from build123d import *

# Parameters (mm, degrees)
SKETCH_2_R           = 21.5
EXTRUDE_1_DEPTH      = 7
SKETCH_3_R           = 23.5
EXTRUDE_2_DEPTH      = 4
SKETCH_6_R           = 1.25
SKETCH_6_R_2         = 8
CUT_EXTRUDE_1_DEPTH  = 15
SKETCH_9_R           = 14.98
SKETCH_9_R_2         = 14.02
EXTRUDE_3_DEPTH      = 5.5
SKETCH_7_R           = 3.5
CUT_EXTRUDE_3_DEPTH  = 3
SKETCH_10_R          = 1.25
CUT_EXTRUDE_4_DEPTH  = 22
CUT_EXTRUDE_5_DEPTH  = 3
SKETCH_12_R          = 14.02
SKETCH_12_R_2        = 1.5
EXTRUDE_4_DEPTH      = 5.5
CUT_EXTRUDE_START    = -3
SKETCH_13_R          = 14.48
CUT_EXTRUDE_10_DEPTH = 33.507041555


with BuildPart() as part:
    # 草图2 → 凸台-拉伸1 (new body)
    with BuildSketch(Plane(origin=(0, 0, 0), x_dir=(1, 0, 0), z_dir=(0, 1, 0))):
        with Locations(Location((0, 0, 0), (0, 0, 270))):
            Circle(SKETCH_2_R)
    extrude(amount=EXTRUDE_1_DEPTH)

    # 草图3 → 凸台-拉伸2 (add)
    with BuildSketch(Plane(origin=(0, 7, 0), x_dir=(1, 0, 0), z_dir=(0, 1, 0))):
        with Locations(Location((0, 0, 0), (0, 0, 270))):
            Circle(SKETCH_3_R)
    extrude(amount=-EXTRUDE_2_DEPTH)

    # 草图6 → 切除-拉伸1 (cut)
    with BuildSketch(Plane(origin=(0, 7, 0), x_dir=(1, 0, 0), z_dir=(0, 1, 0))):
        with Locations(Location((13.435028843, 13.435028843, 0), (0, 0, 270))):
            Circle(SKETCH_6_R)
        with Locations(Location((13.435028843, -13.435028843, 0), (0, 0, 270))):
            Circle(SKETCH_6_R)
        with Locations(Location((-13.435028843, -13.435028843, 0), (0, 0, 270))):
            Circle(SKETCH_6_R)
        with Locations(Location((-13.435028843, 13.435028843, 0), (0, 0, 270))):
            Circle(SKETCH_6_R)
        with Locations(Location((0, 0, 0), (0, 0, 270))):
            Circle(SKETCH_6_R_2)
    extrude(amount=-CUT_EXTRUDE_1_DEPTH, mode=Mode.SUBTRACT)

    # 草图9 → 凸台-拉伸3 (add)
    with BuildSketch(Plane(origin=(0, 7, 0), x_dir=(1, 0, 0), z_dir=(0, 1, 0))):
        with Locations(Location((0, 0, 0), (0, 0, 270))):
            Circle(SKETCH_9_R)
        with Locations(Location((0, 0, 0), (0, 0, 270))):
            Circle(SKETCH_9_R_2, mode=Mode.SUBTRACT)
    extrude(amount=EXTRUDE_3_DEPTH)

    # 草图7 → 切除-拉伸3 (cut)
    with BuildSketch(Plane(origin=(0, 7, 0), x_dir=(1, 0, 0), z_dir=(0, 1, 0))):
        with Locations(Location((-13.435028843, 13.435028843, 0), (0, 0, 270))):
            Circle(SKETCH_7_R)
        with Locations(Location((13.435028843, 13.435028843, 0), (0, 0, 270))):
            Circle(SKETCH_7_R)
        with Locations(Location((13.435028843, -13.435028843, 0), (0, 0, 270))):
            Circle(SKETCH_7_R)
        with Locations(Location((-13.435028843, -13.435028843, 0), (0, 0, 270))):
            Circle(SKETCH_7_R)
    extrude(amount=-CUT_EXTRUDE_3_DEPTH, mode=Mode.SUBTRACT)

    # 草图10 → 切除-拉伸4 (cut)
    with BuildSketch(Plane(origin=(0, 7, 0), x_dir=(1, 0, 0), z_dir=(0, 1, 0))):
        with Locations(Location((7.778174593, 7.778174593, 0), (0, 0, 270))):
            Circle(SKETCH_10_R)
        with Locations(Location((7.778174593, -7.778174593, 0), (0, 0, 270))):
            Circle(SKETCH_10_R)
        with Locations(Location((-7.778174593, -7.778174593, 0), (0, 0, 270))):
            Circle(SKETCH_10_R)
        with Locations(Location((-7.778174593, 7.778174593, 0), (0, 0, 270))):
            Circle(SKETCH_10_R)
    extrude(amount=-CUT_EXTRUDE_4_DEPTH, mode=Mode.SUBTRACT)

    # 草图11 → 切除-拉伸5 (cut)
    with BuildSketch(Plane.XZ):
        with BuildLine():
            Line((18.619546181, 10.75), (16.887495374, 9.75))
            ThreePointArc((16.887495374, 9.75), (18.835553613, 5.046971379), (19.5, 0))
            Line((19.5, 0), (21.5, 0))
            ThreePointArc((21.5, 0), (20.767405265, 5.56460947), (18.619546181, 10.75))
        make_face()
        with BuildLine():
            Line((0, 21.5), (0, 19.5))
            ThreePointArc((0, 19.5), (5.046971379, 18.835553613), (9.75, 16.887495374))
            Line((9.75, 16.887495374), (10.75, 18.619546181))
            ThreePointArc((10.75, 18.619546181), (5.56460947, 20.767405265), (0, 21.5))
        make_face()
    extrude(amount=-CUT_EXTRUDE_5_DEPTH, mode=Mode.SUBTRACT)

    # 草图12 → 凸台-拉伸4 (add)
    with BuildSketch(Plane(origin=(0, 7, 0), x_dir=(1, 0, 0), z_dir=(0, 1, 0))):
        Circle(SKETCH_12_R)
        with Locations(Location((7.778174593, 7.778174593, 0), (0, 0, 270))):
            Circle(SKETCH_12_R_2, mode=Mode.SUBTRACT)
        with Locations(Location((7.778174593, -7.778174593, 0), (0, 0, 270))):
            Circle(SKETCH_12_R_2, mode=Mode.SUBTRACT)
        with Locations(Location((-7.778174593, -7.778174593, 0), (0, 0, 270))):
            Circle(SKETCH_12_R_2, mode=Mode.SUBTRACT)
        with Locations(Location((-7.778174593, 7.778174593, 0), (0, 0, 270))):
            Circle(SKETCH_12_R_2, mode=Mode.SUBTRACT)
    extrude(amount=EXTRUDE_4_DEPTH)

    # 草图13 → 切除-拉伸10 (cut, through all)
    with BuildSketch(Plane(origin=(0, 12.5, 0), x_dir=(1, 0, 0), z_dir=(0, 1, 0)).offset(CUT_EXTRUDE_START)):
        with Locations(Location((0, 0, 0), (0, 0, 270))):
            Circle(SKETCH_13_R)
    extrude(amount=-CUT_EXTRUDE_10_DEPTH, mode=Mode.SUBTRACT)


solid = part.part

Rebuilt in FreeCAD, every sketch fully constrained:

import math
import FreeCAD as App
import Part
import Sketcher
Q = App.Units.Quantity

doc = App.newDocument("Part")
body = doc.addObject("PartDesign::Body", "Body")

# Sketch on XZ plane
sketch1 = body.newObject("Sketcher::SketchObject", "Sketch")
sketch1.AttachmentSupport = (doc.getObject("XZ_Plane"), [""])
sketch1.MapMode = "FlatFace"
sketch1.addGeometry(Part.Circle(App.Vector(0, 0, 0), App.Vector(0, 0, 1), 22), False)
sketch1.addConstraint([
    Sketcher.Constraint("Coincident", 0, 3, -1, 1),
    Sketcher.Constraint("Diameter", 0, 43.0),
])
pad1 = body.newObject("PartDesign::Pad", "Pad")
pad1.Profile = sketch1
pad1.Length = 7
pad1.Reversed = True

# Sketch on XZ plane
sketch2 = body.newObject("Sketcher::SketchObject", "Sketch001")
sketch2.AttachmentSupport = (doc.getObject("XZ_Plane"), [""])
sketch2.MapMode = "FlatFace"
sketch2.AttachmentOffset = App.Placement(App.Vector(0, 0, -7), App.Rotation())
sketch2.addGeometry(Part.Circle(App.Vector(0, 0, 0), App.Vector(0, 0, 1), 24), False)
sketch2.addConstraint([
    Sketcher.Constraint("Coincident", 0, 3, -1, 1),
    Sketcher.Constraint("Diameter", 0, 47.0),
])
pad2 = body.newObject("PartDesign::Pad", "Pad001")
pad2.Profile = sketch2
pad2.Length = 4

# Sketch on XZ plane
sketch3 = body.newObject("Sketcher::SketchObject", "Sketch002")
sketch3.AttachmentSupport = (doc.getObject("XZ_Plane"), [""])
sketch3.MapMode = "FlatFace"
sketch3.AttachmentOffset = App.Placement(App.Vector(0, 0, -7), App.Rotation())
sketch3.addGeometry([
    Part.Circle(App.Vector(13.4, -13.4, 0), App.Vector(0, 0, 1), 1.2),  # 0
    Part.Circle(App.Vector(13.4, 13.4, 0), App.Vector(0, 0, 1), 1.2),  # 1
    Part.Circle(App.Vector(-13.4, 13.4, 0), App.Vector(0, 0, 1), 1.2),  # 2
    Part.Circle(App.Vector(-13.4, -13.4, 0), App.Vector(0, 0, 1), 1.2),  # 3
    Part.Circle(App.Vector(0, 0, 0), App.Vector(0, 0, 1), 8),  # 4
], False)
sketch3.addConstraint([
    Sketcher.Constraint("Coincident", 4, 3, -1, 1),
    Sketcher.Constraint("Equal", 0, 1),
    Sketcher.Constraint("Equal", 1, 2),
    Sketcher.Constraint("Equal", 2, 3),
    Sketcher.Constraint("Symmetric", 0, 3, 2, 3, -1, 1),
    Sketcher.Constraint("Symmetric", 1, 3, 3, 3, -1, 1),
    Sketcher.Constraint("Symmetric", 1, 3, 2, 3, -2),
    Sketcher.Constraint("Diameter", 4, 16.0),
    Sketcher.Constraint("Diameter", 0, 2.5),
    Sketcher.Constraint("DistanceX", -1, 1, 0, 3, 13.435029),
    Sketcher.Constraint("DistanceY", 0, 3, -1, 1, 13.435029),
])
pocket1 = body.newObject("PartDesign::Pocket", "Pocket")
pocket1.Profile = sketch3
pocket1.Length = 15
pocket1.Reversed = True

# Sketch on XZ plane
sketch4 = body.newObject("Sketcher::SketchObject", "Sketch003")
sketch4.AttachmentSupport = (doc.getObject("XZ_Plane"), [""])
sketch4.MapMode = "FlatFace"
sketch4.AttachmentOffset = App.Placement(App.Vector(0, 0, -7), App.Rotation())
sketch4.addGeometry([
    Part.Circle(App.Vector(0, 0, 0), App.Vector(0, 0, 1), 15),
    Part.Circle(App.Vector(0, 0, 0), App.Vector(0, 0, 1), 14),
], False)
sketch4.addConstraint([
    Sketcher.Constraint("Coincident", 0, 3, -1, 1),
    Sketcher.Constraint("Coincident", 1, 3, -1, 1),
    Sketcher.Constraint("Diameter", 0, 29.96),
    Sketcher.Constraint("Diameter", 1, 28.04),
])
pad3 = body.newObject("PartDesign::Pad", "Pad002")
pad3.Profile = sketch4
pad3.Length = 5.5
pad3.Reversed = True

# Sketch on XZ plane
sketch5 = body.newObject("Sketcher::SketchObject", "Sketch004")
sketch5.AttachmentSupport = (doc.getObject("XZ_Plane"), [""])
sketch5.MapMode = "FlatFace"
sketch5.AttachmentOffset = App.Placement(App.Vector(0, 0, -7), App.Rotation())
sketch5.addGeometry([
    Part.Circle(App.Vector(-13.4, -13.4, 0), App.Vector(0, 0, 1), 3.5),
    Part.Circle(App.Vector(13.4, -13.4, 0), App.Vector(0, 0, 1), 3.5),
    Part.Circle(App.Vector(13.4, 13.4, 0), App.Vector(0, 0, 1), 3.5),
    Part.Circle(App.Vector(-13.4, 13.4, 0), App.Vector(0, 0, 1), 3.5),
], False)
sketch5.addConstraint([
    Sketcher.Constraint("Equal", 0, 1),
    Sketcher.Constraint("Equal", 1, 2),
    Sketcher.Constraint("Equal", 2, 3),
    Sketcher.Constraint("Symmetric", 0, 3, 2, 3, -1, 1),
    Sketcher.Constraint("Symmetric", 1, 3, 3, 3, -1, 1),
    Sketcher.Constraint("Symmetric", 0, 3, 1, 3, -2),
    Sketcher.Constraint("Diameter", 0, 7.0),
    Sketcher.Constraint("DistanceX", 0, 3, -1, 1, 13.435029),
    Sketcher.Constraint("DistanceY", 0, 3, -1, 1, 13.435029),
])
pocket2 = body.newObject("PartDesign::Pocket", "Pocket001")
pocket2.Profile = sketch5
pocket2.Length = 3
pocket2.Reversed = True

# Sketch on XZ plane
sketch6 = body.newObject("Sketcher::SketchObject", "Sketch005")
sketch6.AttachmentSupport = (doc.getObject("XZ_Plane"), [""])
sketch6.MapMode = "FlatFace"
sketch6.AttachmentOffset = App.Placement(App.Vector(0, 0, -7), App.Rotation())
sketch6.addGeometry([
    Part.Circle(App.Vector(7.8, -7.8, 0), App.Vector(0, 0, 1), 1.2),
    Part.Circle(App.Vector(7.8, 7.8, 0), App.Vector(0, 0, 1), 1.2),
    Part.Circle(App.Vector(-7.8, 7.8, 0), App.Vector(0, 0, 1), 1.2),
    Part.Circle(App.Vector(-7.8, -7.8, 0), App.Vector(0, 0, 1), 1.2),
], False)
sketch6.addConstraint([
    Sketcher.Constraint("Equal", 0, 1),
    Sketcher.Constraint("Equal", 1, 2),
    Sketcher.Constraint("Equal", 2, 3),
    Sketcher.Constraint("Symmetric", 0, 3, 2, 3, -1, 1),
    Sketcher.Constraint("Symmetric", 1, 3, 3, 3, -1, 1),
    Sketcher.Constraint("Symmetric", 1, 3, 2, 3, -2),
    Sketcher.Constraint("Diameter", 0, 2.5),
    Sketcher.Constraint("DistanceY", 0, 3, 1, 3, 15.556349),
    Sketcher.Constraint("DistanceX", 2, 3, 1, 3, 15.556349),
])
pocket3 = body.newObject("PartDesign::Pocket", "Pocket002")
pocket3.Profile = sketch6
pocket3.Length = 22
pocket3.Reversed = True

# Sketch on XZ plane
sketch7 = body.newObject("Sketcher::SketchObject", "Sketch006")
sketch7.AttachmentSupport = (doc.getObject("XZ_Plane"), [""])
sketch7.MapMode = "FlatFace"
sketch7.addGeometry([
    Part.LineSegment(App.Vector(18.6, 10.8, 0), App.Vector(16.9, 9.8, 0)),  # 0
    Part.ArcOfCircle(Part.Circle(App.Vector(0, 0, 0), App.Vector(0, 0, 1), 19.5), math.radians(0), math.radians(30)),  # 1
    Part.LineSegment(App.Vector(19.5, 0, 0), App.Vector(21.5, 0, 0)),  # 2
    Part.ArcOfCircle(Part.Circle(App.Vector(0, 0, 0), App.Vector(0, 0, 1), 21.5), math.radians(0), math.radians(30)),  # 3
    Part.LineSegment(App.Vector(0, 21.5, 0), App.Vector(0, 19.5, 0)),  # 4
    Part.ArcOfCircle(Part.Circle(App.Vector(0, 0, 0), App.Vector(0, 0, 1), 19.5), math.radians(60), math.radians(90)),  # 5
    Part.LineSegment(App.Vector(9.8, 16.9, 0), App.Vector(10.8, 18.6, 0)),  # 6
    Part.ArcOfCircle(Part.Circle(App.Vector(0, 0, 0), App.Vector(0, 0, 1), 21.5), math.radians(60), math.radians(90)),  # 7
], False)
sketch7.addConstraint([
    Sketcher.Constraint("Coincident", 0, 2, 1, 2),
    Sketcher.Constraint("Coincident", 1, 1, 2, 1),
    Sketcher.Constraint("Coincident", 2, 2, 3, 1),
    Sketcher.Constraint("Coincident", 3, 2, 0, 1),
    Sketcher.Constraint("Coincident", 4, 2, 5, 2),
    Sketcher.Constraint("Coincident", 5, 1, 6, 1),
    Sketcher.Constraint("Coincident", 6, 2, 7, 1),
    Sketcher.Constraint("Coincident", 7, 2, 4, 1),
    Sketcher.Constraint("Horizontal", 2),
    Sketcher.Constraint("Vertical", 4),
    Sketcher.Constraint("Coincident", 1, 3, -1, 1),
    Sketcher.Constraint("Coincident", 3, 3, -1, 1),
    Sketcher.Constraint("Coincident", 5, 3, -1, 1),
    Sketcher.Constraint("Coincident", 7, 3, -1, 1),
    Sketcher.Constraint("Equal", 1, 5),
    Sketcher.Constraint("Equal", 3, 7),
    Sketcher.Constraint("PointOnObject", 1, 1, -1),
    Sketcher.Constraint("PointOnObject", 4, 2, -2),
    Sketcher.Constraint("Radius", 1, 19.5),
    Sketcher.Constraint("Radius", 3, 21.5),
    Sketcher.Constraint("Angle", 0, Q("-150 deg")),
    Sketcher.Constraint("Angle", 6, Q("60 deg")),
    Sketcher.Constraint("DistanceY", -1, 1, 0, 2, 9.75),
    Sketcher.Constraint("DistanceX", -1, 1, 5, 1, 9.75),
])
pocket4 = body.newObject("PartDesign::Pocket", "Pocket003")
pocket4.Profile = sketch7
pocket4.Length = 3

# Sketch on XZ plane
sketch8 = body.newObject("Sketcher::SketchObject", "Sketch007")
sketch8.AttachmentSupport = (doc.getObject("XZ_Plane"), [""])
sketch8.MapMode = "FlatFace"
sketch8.AttachmentOffset = App.Placement(App.Vector(0, 0, -7), App.Rotation())
sketch8.addGeometry([
    Part.Circle(App.Vector(0, 0, 0), App.Vector(0, 0, 1), 14),  # 0
    Part.Circle(App.Vector(-7.8, 7.8, 0), App.Vector(0, 0, 1), 1.5),  # 1
    Part.Circle(App.Vector(7.8, 7.8, 0), App.Vector(0, 0, 1), 1.5),  # 2
    Part.Circle(App.Vector(-7.8, -7.8, 0), App.Vector(0, 0, 1), 1.5),  # 3
    Part.Circle(App.Vector(7.8, -7.8, 0), App.Vector(0, 0, 1), 1.5),  # 4
], False)
sketch8.addConstraint([
    Sketcher.Constraint("Coincident", 0, 3, -1, 1),
    Sketcher.Constraint("Equal", 1, 2),
    Sketcher.Constraint("Equal", 2, 3),
    Sketcher.Constraint("Equal", 3, 4),
    Sketcher.Constraint("Symmetric", 2, 3, 3, 3, -1, 1),
    Sketcher.Constraint("Symmetric", 1, 3, 4, 3, -1, 1),
    Sketcher.Constraint("Symmetric", 1, 3, 2, 3, -2),
    Sketcher.Constraint("Diameter", 1, 3.0),
    Sketcher.Constraint("Diameter", 0, 28.04),
    Sketcher.Constraint("DistanceX", 1, 3, 2, 3, 15.556349),
    Sketcher.Constraint("DistanceY", 3, 3, 1, 3, 15.556349),
])
pad4 = body.newObject("PartDesign::Pad", "Pad003")
pad4.Profile = sketch8
pad4.Length = 5.5
pad4.Reversed = True

# Sketch on XZ plane
sketch9 = body.newObject("Sketcher::SketchObject", "Sketch008")
sketch9.AttachmentSupport = (doc.getObject("XZ_Plane"), [""])
sketch9.MapMode = "FlatFace"
sketch9.AttachmentOffset = App.Placement(App.Vector(0, 0, -9.5), App.Rotation())
sketch9.addGeometry(Part.Circle(App.Vector(0, 0, 0), App.Vector(0, 0, 1), 14), False)
sketch9.addConstraint([
    Sketcher.Constraint("Coincident", 0, 3, -1, 1),
    Sketcher.Constraint("Diameter", 0, 28.96),
])
pocket5 = body.newObject("PartDesign::Pocket", "Pocket004")
pocket5.Profile = sketch9
pocket5.Type = "ThroughAll"
pocket5.Reversed = True

doc.recompute()
